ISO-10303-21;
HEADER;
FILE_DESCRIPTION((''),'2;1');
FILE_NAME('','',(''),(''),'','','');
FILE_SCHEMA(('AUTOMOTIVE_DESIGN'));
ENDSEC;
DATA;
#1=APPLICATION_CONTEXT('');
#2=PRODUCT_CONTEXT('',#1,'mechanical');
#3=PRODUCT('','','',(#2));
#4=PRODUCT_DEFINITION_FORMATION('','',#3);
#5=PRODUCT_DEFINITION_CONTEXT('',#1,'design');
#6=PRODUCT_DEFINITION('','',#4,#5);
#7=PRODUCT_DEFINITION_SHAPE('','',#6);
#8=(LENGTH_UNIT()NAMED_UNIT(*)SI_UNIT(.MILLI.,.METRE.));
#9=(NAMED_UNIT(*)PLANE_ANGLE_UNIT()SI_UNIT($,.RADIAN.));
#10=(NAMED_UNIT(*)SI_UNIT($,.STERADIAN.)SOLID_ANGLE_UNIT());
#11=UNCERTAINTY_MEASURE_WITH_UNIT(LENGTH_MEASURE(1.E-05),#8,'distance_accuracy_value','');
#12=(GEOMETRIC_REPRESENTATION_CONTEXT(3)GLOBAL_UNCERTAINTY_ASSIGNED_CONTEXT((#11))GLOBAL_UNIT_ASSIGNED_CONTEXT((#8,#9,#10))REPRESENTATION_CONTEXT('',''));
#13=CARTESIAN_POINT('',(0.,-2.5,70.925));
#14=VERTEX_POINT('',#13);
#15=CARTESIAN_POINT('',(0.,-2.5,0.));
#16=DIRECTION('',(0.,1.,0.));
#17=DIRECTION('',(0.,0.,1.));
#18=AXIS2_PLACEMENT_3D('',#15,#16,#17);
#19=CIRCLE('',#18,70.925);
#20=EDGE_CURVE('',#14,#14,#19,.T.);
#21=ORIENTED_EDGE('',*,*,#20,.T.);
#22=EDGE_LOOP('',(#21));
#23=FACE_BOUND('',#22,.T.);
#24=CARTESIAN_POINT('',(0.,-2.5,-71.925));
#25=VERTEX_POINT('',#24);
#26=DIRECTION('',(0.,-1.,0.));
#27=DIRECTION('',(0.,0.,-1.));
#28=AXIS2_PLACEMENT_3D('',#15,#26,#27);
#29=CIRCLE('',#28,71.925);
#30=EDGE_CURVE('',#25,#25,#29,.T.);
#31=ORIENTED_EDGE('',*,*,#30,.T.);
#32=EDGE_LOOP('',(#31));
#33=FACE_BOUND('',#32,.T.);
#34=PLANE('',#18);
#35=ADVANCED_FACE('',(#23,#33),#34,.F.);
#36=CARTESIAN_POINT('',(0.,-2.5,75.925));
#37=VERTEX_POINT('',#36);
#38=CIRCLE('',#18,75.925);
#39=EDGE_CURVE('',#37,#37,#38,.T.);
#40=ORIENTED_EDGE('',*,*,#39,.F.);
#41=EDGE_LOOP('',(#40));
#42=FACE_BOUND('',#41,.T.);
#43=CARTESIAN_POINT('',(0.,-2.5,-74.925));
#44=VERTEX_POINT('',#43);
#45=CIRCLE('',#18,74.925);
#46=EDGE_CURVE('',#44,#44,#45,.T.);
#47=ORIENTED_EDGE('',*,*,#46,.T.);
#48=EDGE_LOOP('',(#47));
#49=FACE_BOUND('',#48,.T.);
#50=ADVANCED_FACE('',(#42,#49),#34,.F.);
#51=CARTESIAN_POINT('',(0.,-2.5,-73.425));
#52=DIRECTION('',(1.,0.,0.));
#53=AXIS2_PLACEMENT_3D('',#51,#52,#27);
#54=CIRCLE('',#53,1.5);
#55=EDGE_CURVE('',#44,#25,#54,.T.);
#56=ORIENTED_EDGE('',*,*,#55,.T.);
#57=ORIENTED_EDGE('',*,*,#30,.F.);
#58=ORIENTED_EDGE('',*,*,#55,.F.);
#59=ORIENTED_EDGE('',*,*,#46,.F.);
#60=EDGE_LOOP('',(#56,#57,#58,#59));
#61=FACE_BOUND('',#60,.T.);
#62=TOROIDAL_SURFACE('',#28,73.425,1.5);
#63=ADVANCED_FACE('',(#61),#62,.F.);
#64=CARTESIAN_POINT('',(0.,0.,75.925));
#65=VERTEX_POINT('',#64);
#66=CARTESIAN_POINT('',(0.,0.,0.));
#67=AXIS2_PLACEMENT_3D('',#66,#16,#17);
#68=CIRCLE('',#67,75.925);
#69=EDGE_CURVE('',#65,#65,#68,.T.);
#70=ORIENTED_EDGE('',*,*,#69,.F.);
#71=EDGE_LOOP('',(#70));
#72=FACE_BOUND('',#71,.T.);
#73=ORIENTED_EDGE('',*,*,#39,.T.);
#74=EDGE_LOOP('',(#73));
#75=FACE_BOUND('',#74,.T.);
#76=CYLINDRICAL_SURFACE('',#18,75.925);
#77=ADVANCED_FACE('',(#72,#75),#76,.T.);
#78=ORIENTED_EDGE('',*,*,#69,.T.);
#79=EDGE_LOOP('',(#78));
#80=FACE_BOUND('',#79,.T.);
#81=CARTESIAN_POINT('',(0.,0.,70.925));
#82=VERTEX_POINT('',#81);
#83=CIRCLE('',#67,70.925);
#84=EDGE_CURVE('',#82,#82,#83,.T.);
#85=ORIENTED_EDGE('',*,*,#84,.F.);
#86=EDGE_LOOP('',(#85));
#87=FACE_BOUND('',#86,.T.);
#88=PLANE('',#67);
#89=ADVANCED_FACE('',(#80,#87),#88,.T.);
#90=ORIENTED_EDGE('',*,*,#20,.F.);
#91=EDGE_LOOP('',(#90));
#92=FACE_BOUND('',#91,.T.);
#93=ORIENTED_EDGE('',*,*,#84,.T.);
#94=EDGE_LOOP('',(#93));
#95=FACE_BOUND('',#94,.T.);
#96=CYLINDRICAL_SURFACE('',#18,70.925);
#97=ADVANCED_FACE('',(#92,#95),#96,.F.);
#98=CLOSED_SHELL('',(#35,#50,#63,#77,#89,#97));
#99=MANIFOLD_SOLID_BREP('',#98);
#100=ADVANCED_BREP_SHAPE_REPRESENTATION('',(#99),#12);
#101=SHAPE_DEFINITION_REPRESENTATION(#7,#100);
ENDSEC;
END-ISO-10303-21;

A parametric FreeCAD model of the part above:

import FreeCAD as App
import Part
import Sketcher
Q = App.Units.Quantity

doc = App.newDocument("Part")
body = doc.addObject("PartDesign::Body", "Body")

# Sketch on XZ plane
sketch1 = body.newObject("Sketcher::SketchObject", "Sketch")
sketch1.AttachmentSupport = (doc.getObject("XZ_Plane"), [""])
sketch1.MapMode = "FlatFace"
sketch1.addGeometry([
    Part.Circle(App.Vector(0, 0, 0), App.Vector(0, 0, 1), 76),
    Part.Circle(App.Vector(0, 0, 0), App.Vector(0, 0, 1), 71),
], False)
sketch1.addConstraint([
    Sketcher.Constraint("Coincident", 0, 3, -1, 1),
    Sketcher.Constraint("Coincident", 1, 3, -1, 1),
    Sketcher.Constraint("Diameter", 0, Q("151.85 mm")),
    Sketcher.Constraint("Diameter", 1, Q("141.85 mm")),
])
pad1 = body.newObject("PartDesign::Pad", "Pad")
pad1.Profile = sketch1
pad1.Length = 2.5

# Sketch on XY plane
sketch2 = body.newObject("Sketcher::SketchObject", "Sketch001")
sketch2.AttachmentSupport = (doc.getObject("XY_Plane"), [""])
sketch2.MapMode = "FlatFace"
sketch2.addGeometry(Part.Circle(App.Vector(73.4, -2.5, 0), App.Vector(0, 0, 1), 1.5), False)
sketch2.addConstraint([
    Sketcher.Constraint("Diameter", 0, Q("3 mm")),
    Sketcher.Constraint("DistanceY", 0, 3, -1, 1, Q("2.5 mm")),
    Sketcher.Constraint("DistanceX", -1, 1, 0, 3, Q("73.425 mm")),
])

# Sketch on XZ plane
sketch3 = body.newObject("Sketcher::SketchObject", "Sketch002")
sketch3.AttachmentSupport = (doc.getObject("XZ_Plane"), [""])
sketch3.MapMode = "FlatFace"
sketch3.AttachmentOffset = App.Placement(App.Vector(0, 0, 2.5), App.Rotation())
sketch3.addGeometry(Part.Circle(App.Vector(0, 0, 0), App.Vector(0, 0, 1), 73), False)
sketch3.addConstraint([
    Sketcher.Constraint("Coincident", 0, 3, -1, 1),
    Sketcher.Constraint("Diameter", 0, Q("146.85 mm")),
])
doc.recompute()

subtractivepipe = body.newObject("PartDesign::SubtractivePipe", "SubtractivePipe")
subtractivepipe.Profile = sketch2
subtractivepipe.Spine = (sketch3, ["Edge1"])

doc.recompute()
